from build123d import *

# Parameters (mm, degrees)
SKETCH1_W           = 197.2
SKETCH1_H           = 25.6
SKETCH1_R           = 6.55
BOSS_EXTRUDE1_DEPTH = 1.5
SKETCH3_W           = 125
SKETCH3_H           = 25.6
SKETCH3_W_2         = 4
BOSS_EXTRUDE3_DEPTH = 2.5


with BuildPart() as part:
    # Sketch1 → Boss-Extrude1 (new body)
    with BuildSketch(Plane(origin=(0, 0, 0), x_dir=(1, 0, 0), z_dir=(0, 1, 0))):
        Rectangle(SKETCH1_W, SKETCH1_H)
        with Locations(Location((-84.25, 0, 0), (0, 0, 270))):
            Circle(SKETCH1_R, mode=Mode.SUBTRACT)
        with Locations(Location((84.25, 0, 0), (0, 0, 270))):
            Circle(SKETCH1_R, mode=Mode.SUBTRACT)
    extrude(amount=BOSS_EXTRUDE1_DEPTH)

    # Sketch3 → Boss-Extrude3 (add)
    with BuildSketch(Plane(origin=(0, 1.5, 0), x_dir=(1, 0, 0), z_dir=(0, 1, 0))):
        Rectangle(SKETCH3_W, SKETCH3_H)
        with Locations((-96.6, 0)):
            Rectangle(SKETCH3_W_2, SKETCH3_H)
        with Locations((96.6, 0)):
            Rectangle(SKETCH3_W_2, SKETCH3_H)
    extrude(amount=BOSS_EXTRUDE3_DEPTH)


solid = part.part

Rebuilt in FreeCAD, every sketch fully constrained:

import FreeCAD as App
import Part
import Sketcher

doc = App.newDocument("Part")
params = doc.addObject("Spreadsheet::Sheet", "Params")
for row, (alias, value) in enumerate([
    ("sketch1_diameter", "13.1 mm"),
    ("sketch1_width", "197.2 mm"),
    ("sketch1_height", "25.6 mm"),
    ("pad1_length", "1.5 mm"),
    ("sketch2_width", "125 mm"),
    ("sketch2_width2", "4 mm"),
    ("sketch2_height", "25.6 mm"),
    ("pad2_length", "2.5 mm"),
], start=1):
    params.set(f"A{row}", alias)
    params.set(f"B{row}", "=" + value)
    params.setAlias(f"B{row}", alias)

body = doc.addObject("PartDesign::Body", "Body")

# Sketch on XZ plane
sketch1 = body.newObject("Sketcher::SketchObject", "Sketch")
sketch1.AttachmentSupport = (doc.getObject("XZ_Plane"), [""])
sketch1.MapMode = "FlatFace"
sketch1.addGeometry([
    Part.LineSegment(App.Vector(-98.6, -12.8, 0), App.Vector(-98.6, 12.8, 0)),  # 0
    Part.LineSegment(App.Vector(-98.6, 12.8, 0), App.Vector(98.6, 12.8, 0)),  # 1
    Part.LineSegment(App.Vector(98.6, 12.8, 0), App.Vector(98.6, -12.8, 0)),  # 2
    Part.LineSegment(App.Vector(98.6, -12.8, 0), App.Vector(-98.6, -12.8, 0)),  # 3
    Part.Circle(App.Vector(-84.25, 0, 0), App.Vector(0, 0, 1), 6.55),  # 4
    Part.Circle(App.Vector(84.25, 0, 0), App.Vector(0, 0, 1), 6.55),  # 5
], False)
sketch1.addConstraint([
    Sketcher.Constraint("Coincident", 0, 2, 1, 1),
    Sketcher.Constraint("Coincident", 1, 2, 2, 1),
    Sketcher.Constraint("Coincident", 2, 2, 3, 1),
    Sketcher.Constraint("Coincident", 3, 2, 0, 1),
    Sketcher.Constraint("Vertical", 0),
    Sketcher.Constraint("Horizontal", 1),
    Sketcher.Constraint("Vertical", 2),
    Sketcher.Constraint("Horizontal", 3),
    Sketcher.Constraint("Equal", 4, 5),
    Sketcher.Constraint("Symmetric", 4, 3, 5, 3, -1, 1),
    Sketcher.Constraint("Symmetric", 0, 2, 2, 2, -1, 1),
    Sketcher.Constraint("PointOnObject", 4, 3, -1),
    Sketcher.Constraint("Diameter", 4, 13.1),
    Sketcher.Constraint("DistanceX", 1, 1, 1, 2, 197.2),
    Sketcher.Constraint("DistanceY", 0, 1, 0, 2, 25.6),
    Sketcher.Constraint("DistanceX", 4, 3, 5, 3, 168.5),
])
sketch1.setExpression("Constraints[12]", "Params.sketch1_diameter")
sketch1.setExpression("Constraints[13]", "Params.sketch1_width")
sketch1.setExpression("Constraints[14]", "Params.sketch1_height")
pad1 = body.newObject("PartDesign::Pad", "Pad")
pad1.Profile = sketch1
pad1.setExpression("Length", "Params.pad1_length")
pad1.Reversed = True

# Sketch on XZ plane
sketch2 = body.newObject("Sketcher::SketchObject", "Sketch001")
sketch2.AttachmentSupport = (doc.getObject("XZ_Plane"), [""])
sketch2.MapMode = "FlatFace"
sketch2.AttachmentOffset = App.Placement(App.Vector(0, 0, -1.5), App.Rotation())
sketch2.addGeometry([
    Part.LineSegment(App.Vector(-62.5, -12.8, 0), App.Vector(-62.5, 12.8, 0)),  # 0
    Part.LineSegment(App.Vector(-62.5, 12.8, 0), App.Vector(62.5, 12.8, 0)),  # 1
    Part.LineSegment(App.Vector(62.5, 12.8, 0), App.Vector(62.5, -12.8, 0)),  # 2
    Part.LineSegment(App.Vector(62.5, -12.8, 0), App.Vector(-62.5, -12.8, 0)),  # 3
    Part.LineSegment(App.Vector(-98.6, -12.8, 0), App.Vector(-98.6, 12.8, 0)),  # 4
    Part.LineSegment(App.Vector(-98.6, 12.8, 0), App.Vector(-94.6, 12.8, 0)),  # 5
    Part.LineSegment(App.Vector(-94.6, 12.8, 0), App.Vector(-94.6, -12.8, 0)),  # 6
    Part.LineSegment(App.Vector(-94.6, -12.8, 0), App.Vector(-98.6, -12.8, 0)),  # 7
    Part.LineSegment(App.Vector(94.6, -12.8, 0), App.Vector(94.6, 12.8, 0)),  # 8
    Part.LineSegment(App.Vector(94.6, 12.8, 0), App.Vector(98.6, 12.8, 0)),  # 9
    Part.LineSegment(App.Vector(98.6, 12.8, 0), App.Vector(98.6, -12.8, 0)),  # 10
    Part.LineSegment(App.Vector(98.6, -12.8, 0), App.Vector(94.6, -12.8, 0)),  # 11
], False)
sketch2.addConstraint([
    Sketcher.Constraint("Coincident", 0, 2, 1, 1),
    Sketcher.Constraint("Coincident", 1, 2, 2, 1),
    Sketcher.Constraint("Coincident", 2, 2, 3, 1),
    Sketcher.Constraint("Coincident", 3, 2, 0, 1),
    Sketcher.Constraint("Coincident", 4, 2, 5, 1),
    Sketcher.Constraint("Coincident", 5, 2, 6, 1),
    Sketcher.Constraint("Coincident", 6, 2, 7, 1),
    Sketcher.Constraint("Coincident", 7, 2, 4, 1),
    Sketcher.Constraint("Coincident", 8, 2, 9, 1),
    Sketcher.Constraint("Coincident", 9, 2, 10, 1),
    Sketcher.Constraint("Coincident", 10, 2, 11, 1),
    Sketcher.Constraint("Coincident", 11, 2, 8, 1),
    Sketcher.Constraint("Vertical", 0),
    Sketcher.Constraint("Horizontal", 1),
    Sketcher.Constraint("Vertical", 2),
    Sketcher.Constraint("Horizontal", 3),
    Sketcher.Constraint("Vertical", 4),
    Sketcher.Constraint("Horizontal", 5),
    Sketcher.Constraint("Vertical", 6),
    Sketcher.Constraint("Horizontal", 7),
    Sketcher.Constraint("Vertical", 8),
    Sketcher.Constraint("Horizontal", 9),
    Sketcher.Constraint("Vertical", 10),
    Sketcher.Constraint("Horizontal", 11),
    Sketcher.Constraint("Symmetric", 0, 2, 2, 2, -1, 1),
    Sketcher.Constraint("Symmetric", 6, 2, 8, 2, -1, 1),
    Sketcher.Constraint("Symmetric", 4, 2, 10, 2, -1, 1),
    Sketcher.Constraint("Horizontal", 1, 2, 4, 2),
    Sketcher.Constraint("Horizontal", 3, 2, 6, 2),
    Sketcher.Constraint("DistanceX", 1, 1, 1, 2, 125.0),
    Sketcher.Constraint("DistanceX", 5, 1, 5, 2, 4.0),
    Sketcher.Constraint("DistanceY", 0, 1, 0, 2, 25.6),
    Sketcher.Constraint("DistanceX", 4, 2, -1, 1, 98.6),
])
sketch2.setExpression("Constraints[29]", "Params.sketch2_width")
sketch2.setExpression("Constraints[30]", "Params.sketch2_width2")
sketch2.setExpression("Constraints[31]", "Params.sketch2_height")
pad2 = body.newObject("PartDesign::Pad", "Pad001")
pad2.Profile = sketch2
pad2.setExpression("Length", "Params.pad2_length")
pad2.Reversed = True

doc.recompute()
